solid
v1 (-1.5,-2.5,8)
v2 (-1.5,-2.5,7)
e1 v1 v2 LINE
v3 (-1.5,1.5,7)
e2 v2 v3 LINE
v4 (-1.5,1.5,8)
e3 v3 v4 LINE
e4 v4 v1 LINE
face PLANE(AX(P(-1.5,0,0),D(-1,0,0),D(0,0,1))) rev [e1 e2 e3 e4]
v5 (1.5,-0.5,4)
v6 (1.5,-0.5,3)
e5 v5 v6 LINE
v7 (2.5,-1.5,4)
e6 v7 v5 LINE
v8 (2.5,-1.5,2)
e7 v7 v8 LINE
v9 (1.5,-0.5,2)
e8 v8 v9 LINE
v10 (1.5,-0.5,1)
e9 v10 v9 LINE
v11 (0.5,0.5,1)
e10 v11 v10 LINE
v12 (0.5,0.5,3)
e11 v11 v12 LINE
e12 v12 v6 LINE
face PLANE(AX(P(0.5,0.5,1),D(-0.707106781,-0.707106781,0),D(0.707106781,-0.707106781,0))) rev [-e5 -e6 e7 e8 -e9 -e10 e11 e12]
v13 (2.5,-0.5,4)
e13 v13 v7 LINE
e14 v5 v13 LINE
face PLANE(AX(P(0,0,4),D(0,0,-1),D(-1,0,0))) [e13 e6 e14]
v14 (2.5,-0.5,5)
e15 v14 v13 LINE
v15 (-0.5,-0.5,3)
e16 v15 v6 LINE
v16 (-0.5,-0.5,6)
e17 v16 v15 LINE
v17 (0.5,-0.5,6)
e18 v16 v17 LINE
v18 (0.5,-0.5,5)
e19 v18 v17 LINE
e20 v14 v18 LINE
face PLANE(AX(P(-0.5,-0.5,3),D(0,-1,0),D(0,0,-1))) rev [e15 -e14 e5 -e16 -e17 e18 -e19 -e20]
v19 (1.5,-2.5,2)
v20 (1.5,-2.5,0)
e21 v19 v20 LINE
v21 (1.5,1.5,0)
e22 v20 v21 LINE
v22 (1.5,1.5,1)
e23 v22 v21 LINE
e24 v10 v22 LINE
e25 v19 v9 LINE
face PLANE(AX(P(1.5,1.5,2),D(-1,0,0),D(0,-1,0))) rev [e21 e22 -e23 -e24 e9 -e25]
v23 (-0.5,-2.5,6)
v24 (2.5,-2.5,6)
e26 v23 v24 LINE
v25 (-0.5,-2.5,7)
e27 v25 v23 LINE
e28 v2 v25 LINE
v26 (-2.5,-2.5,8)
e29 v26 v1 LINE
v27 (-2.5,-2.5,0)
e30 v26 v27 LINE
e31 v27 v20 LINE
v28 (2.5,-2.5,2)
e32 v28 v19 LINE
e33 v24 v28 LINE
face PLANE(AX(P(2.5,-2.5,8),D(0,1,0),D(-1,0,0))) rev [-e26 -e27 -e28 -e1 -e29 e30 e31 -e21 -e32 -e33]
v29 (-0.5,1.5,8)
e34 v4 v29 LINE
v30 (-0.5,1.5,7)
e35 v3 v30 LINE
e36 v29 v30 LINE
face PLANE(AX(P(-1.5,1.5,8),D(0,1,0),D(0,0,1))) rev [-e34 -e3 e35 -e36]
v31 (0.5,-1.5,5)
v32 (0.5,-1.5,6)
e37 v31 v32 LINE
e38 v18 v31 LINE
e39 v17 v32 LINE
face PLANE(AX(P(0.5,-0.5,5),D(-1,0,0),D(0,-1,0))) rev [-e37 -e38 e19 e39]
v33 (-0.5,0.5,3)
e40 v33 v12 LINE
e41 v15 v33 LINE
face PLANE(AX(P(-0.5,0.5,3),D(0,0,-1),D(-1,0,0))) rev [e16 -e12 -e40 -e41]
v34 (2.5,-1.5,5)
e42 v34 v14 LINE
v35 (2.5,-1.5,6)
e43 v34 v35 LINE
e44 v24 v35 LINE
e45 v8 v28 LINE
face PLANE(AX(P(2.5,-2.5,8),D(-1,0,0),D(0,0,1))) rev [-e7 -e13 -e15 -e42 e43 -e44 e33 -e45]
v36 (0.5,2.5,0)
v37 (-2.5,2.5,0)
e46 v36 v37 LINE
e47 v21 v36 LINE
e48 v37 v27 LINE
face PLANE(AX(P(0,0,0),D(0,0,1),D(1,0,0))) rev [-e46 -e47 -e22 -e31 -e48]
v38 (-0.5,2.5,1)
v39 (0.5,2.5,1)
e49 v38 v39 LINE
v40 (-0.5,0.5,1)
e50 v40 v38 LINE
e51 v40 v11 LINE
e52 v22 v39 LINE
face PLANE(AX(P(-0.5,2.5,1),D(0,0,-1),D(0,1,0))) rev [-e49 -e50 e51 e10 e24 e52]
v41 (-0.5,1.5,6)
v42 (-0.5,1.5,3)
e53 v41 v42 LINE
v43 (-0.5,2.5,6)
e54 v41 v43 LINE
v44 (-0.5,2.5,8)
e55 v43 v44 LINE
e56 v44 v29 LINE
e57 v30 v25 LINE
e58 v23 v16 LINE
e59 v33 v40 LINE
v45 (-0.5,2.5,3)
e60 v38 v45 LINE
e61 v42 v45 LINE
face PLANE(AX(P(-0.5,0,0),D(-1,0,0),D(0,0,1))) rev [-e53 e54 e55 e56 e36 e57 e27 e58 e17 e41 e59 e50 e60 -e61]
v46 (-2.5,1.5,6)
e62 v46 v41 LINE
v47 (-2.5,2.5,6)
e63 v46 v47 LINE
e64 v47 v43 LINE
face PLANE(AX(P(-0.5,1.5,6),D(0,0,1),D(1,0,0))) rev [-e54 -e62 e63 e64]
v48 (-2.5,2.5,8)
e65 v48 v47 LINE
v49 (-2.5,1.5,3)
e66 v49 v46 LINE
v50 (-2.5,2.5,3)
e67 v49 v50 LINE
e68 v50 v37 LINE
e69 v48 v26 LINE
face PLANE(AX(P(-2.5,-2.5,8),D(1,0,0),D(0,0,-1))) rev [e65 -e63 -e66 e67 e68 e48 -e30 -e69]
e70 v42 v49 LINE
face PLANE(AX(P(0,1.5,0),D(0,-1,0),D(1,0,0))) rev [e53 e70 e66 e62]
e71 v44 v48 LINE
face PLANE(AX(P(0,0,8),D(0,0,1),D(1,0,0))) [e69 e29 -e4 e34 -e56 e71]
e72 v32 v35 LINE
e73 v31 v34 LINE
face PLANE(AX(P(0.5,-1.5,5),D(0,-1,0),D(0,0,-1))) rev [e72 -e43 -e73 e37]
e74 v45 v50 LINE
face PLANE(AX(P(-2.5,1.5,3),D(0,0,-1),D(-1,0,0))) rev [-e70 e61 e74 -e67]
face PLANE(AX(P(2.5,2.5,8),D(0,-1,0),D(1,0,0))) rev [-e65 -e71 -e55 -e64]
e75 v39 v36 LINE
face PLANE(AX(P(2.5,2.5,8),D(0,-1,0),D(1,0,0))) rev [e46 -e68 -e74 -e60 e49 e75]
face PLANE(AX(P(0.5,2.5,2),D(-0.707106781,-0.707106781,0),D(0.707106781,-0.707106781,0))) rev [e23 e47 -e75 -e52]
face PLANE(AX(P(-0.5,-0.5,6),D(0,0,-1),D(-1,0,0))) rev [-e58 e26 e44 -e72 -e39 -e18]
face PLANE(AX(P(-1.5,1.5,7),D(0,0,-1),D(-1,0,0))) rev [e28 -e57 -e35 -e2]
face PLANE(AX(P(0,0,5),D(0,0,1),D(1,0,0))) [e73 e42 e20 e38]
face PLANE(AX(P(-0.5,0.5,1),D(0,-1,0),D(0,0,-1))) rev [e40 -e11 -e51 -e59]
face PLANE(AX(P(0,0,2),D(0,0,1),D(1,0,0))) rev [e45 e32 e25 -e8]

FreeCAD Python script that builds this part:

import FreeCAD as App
import Part
import Sketcher

V = App.Vector
Q = App.Units.Quantity

doc = App.newDocument("Part")
body = doc.addObject("PartDesign::Body", "Body")

# Sketch on XY plane
sketch1 = doc.addObject("Sketcher::SketchObject", "Sketch")
body.addObject(sketch1)
sketch1.AttachmentSupport = (doc.XY_Plane, [""])
sketch1.MapMode = "FlatFace"
sketch1.addGeometry([
    Part.LineSegment(V(-2, 2, 0), V(-2, -2, 0)),
    Part.LineSegment(V(-2, -2, 0), V(2, -2, 0)),
    Part.LineSegment(V(2, -2, 0), V(2, 2, 0)),
    Part.LineSegment(V(2, 2, 0), V(-2, 2, 0)),
], False)
sketch1.addConstraint([
    Sketcher.Constraint("Coincident", 0, 2, 1, 1),
    Sketcher.Constraint("Coincident", 1, 2, 2, 1),
    Sketcher.Constraint("Coincident", 2, 2, 3, 1),
    Sketcher.Constraint("Coincident", 3, 2, 0, 1),
    Sketcher.Constraint("Vertical", 0),
    Sketcher.Constraint("Horizontal", 1),
    Sketcher.Constraint("Vertical", 2),
    Sketcher.Constraint("Horizontal", 3),
    Sketcher.Constraint("Symmetric", 0, 2, 2, 2, -1, 1),
    Sketcher.Constraint("Equal", 3, 0),
    Sketcher.Constraint("DistanceX", 1, 1, 1, 2, Q("5 mm")),
])
pad1 = doc.addObject("PartDesign::Pad", "Pad")
body.addObject(pad1)
pad1.Profile = sketch1
pad1.Length = 8

# Sketch on XZ plane
sketch2 = doc.addObject("Sketcher::SketchObject", "Sketch001")
body.addObject(sketch2)
sketch2.AttachmentSupport = (doc.XZ_Plane, [""])
sketch2.MapMode = "FlatFace"
sketch2.AttachmentOffset = App.Placement(V(0, 0, -2.5), App.Rotation())
sketch2.addGeometry([
    Part.LineSegment(V(-2.5, 3, 0), V(-2.5, 6, 0)),
    Part.LineSegment(V(-2.5, 6, 0), V(-0.5, 6, 0)),
    Part.LineSegment(V(-0.5, 6, 0), V(-0.5, 3, 0)),
    Part.LineSegment(V(-0.5, 3, 0), V(-2.5, 3, 0)),
], False)
sketch2.addConstraint([
    Sketcher.Constraint("Coincident", 0, 2, 1, 1),
    Sketcher.Constraint("Coincident", 1, 2, 2, 1),
    Sketcher.Constraint("Coincident", 2, 2, 3, 1),
    Sketcher.Constraint("Coincident", 3, 2, 0, 1),
    Sketcher.Constraint("Vertical", 0),
    Sketcher.Constraint("Horizontal", 1),
    Sketcher.Constraint("Vertical", 2),
    Sketcher.Constraint("Horizontal", 3),
    Sketcher.Constraint("DistanceX", 1, 1, 1, 2, Q("2 mm")),
    Sketcher.Constraint("DistanceY", 0, 1, 0, 2, Q("3 mm")),
    Sketcher.Constraint("DistanceY", -1, 1, 0, 2, Q("6 mm")),
    Sketcher.Constraint("DistanceX", 0, 2, -1, 1, Q("2.5 mm")),
])
pocket1 = doc.addObject("PartDesign::Pocket", "Pocket")
body.addObject(pocket1)
pocket1.Profile = sketch2
pocket1.Length = 1
pocket1.Reversed = True

# Sketch on YZ plane
sketch3 = doc.addObject("Sketcher::SketchObject", "Sketch002")
body.addObject(sketch3)
sketch3.AttachmentSupport = (doc.YZ_Plane, [""])
sketch3.MapMode = "FlatFace"
sketch3.AttachmentOffset = App.Placement(V(0, 0, 2.5), App.Rotation())
sketch3.addGeometry([
    Part.LineSegment(V(1.5, 8, 0), V(-2.5, 8, 0)),
    Part.LineSegment(V(-2.5, 8, 0), V(-2.5, 7, 0)),
    Part.LineSegment(V(-2.5, 7, 0), V(1.5, 7, 0)),
    Part.LineSegment(V(1.5, 7, 0), V(1.5, 8, 0)),
], False)
sketch3.addConstraint([
    Sketcher.Constraint("Coincident", 0, 2, 1, 1),
    Sketcher.Constraint("Coincident", 1, 2, 2, 1),
    Sketcher.Constraint("Coincident", 2, 2, 3, 1),
    Sketcher.Constraint("Coincident", 3, 2, 0, 1),
    Sketcher.Constraint("Horizontal", 0),
    Sketcher.Constraint("Vertical", 1),
    Sketcher.Constraint("Horizontal", 2),
    Sketcher.Constraint("Vertical", 3),
    Sketcher.Constraint("DistanceX", 0, 2, 0, 1, Q("4 mm")),
    Sketcher.Constraint("DistanceY", 1, 2, 1, 1, Q("1 mm")),
    Sketcher.Constraint("DistanceY", -1, 1, 0, 2, Q("8 mm")),
    Sketcher.Constraint("DistanceX", 0, 2, -1, 1, Q("2.5 mm")),
])
pocket2 = doc.addObject("PartDesign::Pocket", "Pocket001")
body.addObject(pocket2)
pocket2.Profile = sketch3
pocket2.Length = 4

# Sketch on YZ plane
sketch4 = doc.addObject("Sketcher::SketchObject", "Sketch003")
body.addObject(sketch4)
sketch4.AttachmentSupport = (doc.YZ_Plane, [""])
sketch4.MapMode = "FlatFace"
sketch4.AttachmentOffset = App.Placement(V(0, 0, 2.5), App.Rotation())
sketch4.addGeometry([
    Part.LineSegment(V(-0.5, 7, 0), V(-2.5, 7, 0)),
    Part.LineSegment(V(-2.5, 7, 0), V(-2.5, 6, 0)),
    Part.LineSegment(V(-2.5, 6, 0), V(-0.5, 6, 0)),
    Part.LineSegment(V(-0.5, 6, 0), V(-0.5, 7, 0)),
], False)
sketch4.addConstraint([
    Sketcher.Constraint("Coincident", 0, 2, 1, 1),
    Sketcher.Constraint("Coincident", 1, 2, 2, 1),
    Sketcher.Constraint("Coincident", 2, 2, 3, 1),
    Sketcher.Constraint("Coincident", 3, 2, 0, 1),
    Sketcher.Constraint("Horizontal", 0),
    Sketcher.Constraint("Vertical", 1),
    Sketcher.Constraint("Horizontal", 2),
    Sketcher.Constraint("Vertical", 3),
    Sketcher.Constraint("DistanceX", 0, 2, 0, 1, Q("2 mm")),
    Sketcher.Constraint("DistanceY", 1, 2, 1, 1, Q("1 mm")),
    Sketcher.Constraint("DistanceY", -1, 1, 0, 2, Q("7 mm")),
    Sketcher.Constraint("DistanceX", 0, 2, -1, 1, Q("2.5 mm")),
])
pocket3 = doc.addObject("PartDesign::Pocket", "Pocket002")
body.addObject(pocket3)
pocket3.Profile = sketch4
pocket3.Length = 3

# Sketch on YZ plane
sketch5 = doc.addObject("Sketcher::SketchObject", "Sketch004")
body.addObject(sketch5)
sketch5.AttachmentSupport = (doc.YZ_Plane, [""])
sketch5.MapMode = "FlatFace"
sketch5.AttachmentOffset = App.Placement(V(0, 0, 2.5), App.Rotation())
sketch5.addGeometry([
    Part.LineSegment(V(2.5, 8, 0), V(1.5, 8, 0)),  # 0
    Part.LineSegment(V(1.5, 8, 0), V(1.5, 7, 0)),  # 1
    Part.LineSegment(V(1.5, 7, 0), V(-0.5, 7, 0)),  # 2
    Part.LineSegment(V(-0.5, 7, 0), V(-0.5, 3, 0)),  # 3
    Part.LineSegment(V(-0.5, 3, 0), V(0.5, 3, 0)),  # 4
    Part.LineSegment(V(0.5, 3, 0), V(0.5, 1, 0)),  # 5
    Part.LineSegment(V(0.5, 1, 0), V(2.5, 1, 0)),  # 6
    Part.LineSegment(V(2.5, 1, 0), V(2.5, 8, 0)),  # 7
], False)
sketch5.addConstraint([
    Sketcher.Constraint("Coincident", 0, 2, 1, 1),
    Sketcher.Constraint("Coincident", 1, 2, 2, 1),
    Sketcher.Constraint("Coincident", 2, 2, 3, 1),
    Sketcher.Constraint("Coincident", 3, 2, 4, 1),
    Sketcher.Constraint("Coincident", 4, 2, 5, 1),
    Sketcher.Constraint("Coincident", 5, 2, 6, 1),
    Sketcher.Constraint("Coincident", 6, 2, 7, 1),
    Sketcher.Constraint("Coincident", 7, 2, 0, 1),
    Sketcher.Constraint("Horizontal", 0),
    Sketcher.Constraint("Vertical", 1),
    Sketcher.Constraint("Horizontal", 2),
    Sketcher.Constraint("Vertical", 3),
    Sketcher.Constraint("Horizontal", 4),
    Sketcher.Constraint("Vertical", 5),
    Sketcher.Constraint("Horizontal", 6),
    Sketcher.Constraint("Vertical", 7),
    Sketcher.Constraint("Equal", 0, 4),
    Sketcher.Constraint("Equal", 4, 1),
    Sketcher.Constraint("Equal", 6, 5),
    Sketcher.Constraint("DistanceX", 0, 2, 0, 1, Q("1 mm")),
    Sketcher.Constraint("DistanceX", 2, 2, 2, 1, Q("2 mm")),
    Sketcher.Constraint("DistanceY", 3, 2, 3, 1, Q("4 mm")),
    Sketcher.Constraint("DistanceY", -1, 1, 0, 2, Q("8 mm")),
    Sketcher.Constraint("DistanceX", -1, 1, 0, 2, Q("1.5 mm")),
])
pocket4 = doc.addObject("PartDesign::Pocket", "Pocket003")
body.addObject(pocket4)
pocket4.Profile = sketch5
pocket4.Length = 3

# Sketch on XY plane
sketch6 = doc.addObject("Sketcher::SketchObject", "Sketch005")
body.addObject(sketch6)
sketch6.AttachmentSupport = (doc.XY_Plane, [""])
sketch6.MapMode = "FlatFace"
sketch6.AttachmentOffset = App.Placement(V(0, 0, 6), App.Rotation())
sketch6.addGeometry([
    Part.LineSegment(V(0.5, -0.5, 0), V(0.5, -1.5, 0)),
    Part.LineSegment(V(0.5, -1.5, 0), V(2.5, -1.5, 0)),
    Part.LineSegment(V(2.5, -1.5, 0), V(2.5, -0.5, 0)),
    Part.LineSegment(V(2.5, -0.5, 0), V(0.5, -0.5, 0)),
], False)
sketch6.addConstraint([
    Sketcher.Constraint("Coincident", 0, 2, 1, 1),
    Sketcher.Constraint("Coincident", 1, 2, 2, 1),
    Sketcher.Constraint("Coincident", 2, 2, 3, 1),
    Sketcher.Constraint("Coincident", 3, 2, 0, 1),
    Sketcher.Constraint("Vertical", 0),
    Sketcher.Constraint("Horizontal", 1),
    Sketcher.Constraint("Vertical", 2),
    Sketcher.Constraint("Horizontal", 3),
    Sketcher.Constraint("DistanceX", 1, 1, 1, 2, Q("2 mm")),
    Sketcher.Constraint("DistanceY", 0, 2, 0, 1, Q("1 mm")),
    Sketcher.Constraint("DistanceX", -1, 1, 0, 2, Q("0.5 mm")),
    Sketcher.Constraint("DistanceY", 0, 2, -1, 1, Q("1.5 mm")),
])
pocket5 = doc.addObject("PartDesign::Pocket", "Pocket004")
body.addObject(pocket5)
pocket5.Profile = sketch6
pocket5.Length = 1

# Sketch on XY plane
sketch7 = doc.addObject("Sketcher::SketchObject", "Sketch006")
body.addObject(sketch7)
sketch7.AttachmentSupport = (doc.XY_Plane, [""])
sketch7.MapMode = "FlatFace"
sketch7.addGeometry([
    Part.LineSegment(V(1.5, 1.5, 0), V(0.5, 2.5, 0)),  # 0
    Part.LineSegment(V(0.5, 2.5, 0), V(2.5, 2.5, 0)),  # 1
    Part.LineSegment(V(2.5, 2.5, 0), V(2.5, -2.5, 0)),  # 2
    Part.LineSegment(V(2.5, -2.5, 0), V(1.5, -2.5, 0)),  # 3
    Part.LineSegment(V(1.5, -2.5, 0), V(1.5, 1.5, 0)),  # 4
], False)
sketch7.addConstraint([
    Sketcher.Constraint("Coincident", 0, 2, 1, 1),
    Sketcher.Constraint("Coincident", 1, 2, 2, 1),
    Sketcher.Constraint("Coincident", 2, 2, 3, 1),
    Sketcher.Constraint("Coincident", 3, 2, 4, 1),
    Sketcher.Constraint("Coincident", 4, 2, 0, 1),
    Sketcher.Constraint("Horizontal", 1),
    Sketcher.Constraint("Vertical", 2),
    Sketcher.Constraint("Horizontal", 3),
    Sketcher.Constraint("Vertical", 4),
    Sketcher.Constraint("DistanceX", 1, 1, 1, 2, Q("2 mm")),
    Sketcher.Constraint("DistanceX", 3, 2, 3, 1, Q("1 mm")),
    Sketcher.Constraint("DistanceY", 2, 2, 2, 1, Q("5 mm")),
    Sketcher.Constraint("DistanceY", 4, 1, 4, 2, Q("4 mm")),
    Sketcher.Constraint("DistanceX", -1, 1, 0, 2, Q("0.5 mm")),
    Sketcher.Constraint("DistanceY", -1, 1, 0, 2, Q("2.5 mm")),
])
pocket6 = doc.addObject("PartDesign::Pocket", "Pocket005")
body.addObject(pocket6)
pocket6.Profile = sketch7
pocket6.Length = 2
pocket6.Reversed = True

# Sketch on XY plane
sketch8 = doc.addObject("Sketcher::SketchObject", "Sketch007")
body.addObject(sketch8)
sketch8.AttachmentSupport = (doc.XY_Plane, [""])
sketch8.MapMode = "FlatFace"
sketch8.AttachmentOffset = App.Placement(V(0, 0, 3), App.Rotation())
sketch8.addGeometry([
    Part.LineSegment(V(0.5, 0.5, 0), V(1.5, -0.5, 0)),
    Part.LineSegment(V(1.5, -0.5, 0), V(2.5, -0.5, 0)),
    Part.LineSegment(V(2.5, -0.5, 0), V(2.5, 0.5, 0)),
    Part.LineSegment(V(2.5, 0.5, 0), V(0.5, 0.5, 0)),
], False)
sketch8.addConstraint([
    Sketcher.Constraint("Coincident", 0, 2, 1, 1),
    Sketcher.Constraint("Coincident", 1, 2, 2, 1),
    Sketcher.Constraint("Coincident", 2, 2, 3, 1),
    Sketcher.Constraint("Coincident", 3, 2, 0, 1),
    Sketcher.Constraint("Horizontal", 1),
    Sketcher.Constraint("Vertical", 2),
    Sketcher.Constraint("Horizontal", 3),
    Sketcher.Constraint("Equal", 1, 2),
    Sketcher.Constraint("DistanceX", 1, 1, 1, 2, Q("1 mm")),
    Sketcher.Constraint("DistanceX", 3, 2, 3, 1, Q("2 mm")),
    Sketcher.Constraint("DistanceX", -1, 1, 0, 2, Q("1.5 mm")),
    Sketcher.Constraint("DistanceY", 0, 2, -1, 1, Q("0.5 mm")),
])
pocket7 = doc.addObject("PartDesign::Pocket", "Pocket006")
body.addObject(pocket7)
pocket7.Profile = sketch8
pocket7.Length = 2

# Sketch on XY plane
sketch9 = doc.addObject("Sketcher::SketchObject", "Sketch008")
body.addObject(sketch9)
sketch9.AttachmentSupport = (doc.XY_Plane, [""])
sketch9.MapMode = "FlatFace"
sketch9.AttachmentOffset = App.Placement(V(0, 0, 2), App.Rotation())
sketch9.addGeometry([
    Part.LineSegment(V(2.5, -1.5, 0), V(1.5, -0.5, 0)),
    Part.LineSegment(V(1.5, -0.5, 0), V(2.5, -0.5, 0)),
    Part.LineSegment(V(2.5, -0.5, 0), V(2.5, -1.5, 0)),
], False)
sketch9.addConstraint([
    Sketcher.Constraint("Coincident", 0, 2, 1, 1),
    Sketcher.Constraint("Coincident", 1, 2, 2, 1),
    Sketcher.Constraint("Coincident", 2, 2, 0, 1),
    Sketcher.Constraint("Horizontal", 1),
    Sketcher.Constraint("Vertical", 2),
    Sketcher.Constraint("Equal", 1, 2),
    Sketcher.Constraint("DistanceX", 1, 1, 1, 2, Q("1 mm")),
    Sketcher.Constraint("DistanceX", -1, 1, 0, 2, Q("1.5 mm")),
    Sketcher.Constraint("DistanceY", 0, 2, -1, 1, Q("0.5 mm")),
])
pocket8 = doc.addObject("PartDesign::Pocket", "Pocket007")
body.addObject(pocket8)
pocket8.Profile = sketch9
pocket8.Length = 2
pocket8.Reversed = True

doc.recompute()
